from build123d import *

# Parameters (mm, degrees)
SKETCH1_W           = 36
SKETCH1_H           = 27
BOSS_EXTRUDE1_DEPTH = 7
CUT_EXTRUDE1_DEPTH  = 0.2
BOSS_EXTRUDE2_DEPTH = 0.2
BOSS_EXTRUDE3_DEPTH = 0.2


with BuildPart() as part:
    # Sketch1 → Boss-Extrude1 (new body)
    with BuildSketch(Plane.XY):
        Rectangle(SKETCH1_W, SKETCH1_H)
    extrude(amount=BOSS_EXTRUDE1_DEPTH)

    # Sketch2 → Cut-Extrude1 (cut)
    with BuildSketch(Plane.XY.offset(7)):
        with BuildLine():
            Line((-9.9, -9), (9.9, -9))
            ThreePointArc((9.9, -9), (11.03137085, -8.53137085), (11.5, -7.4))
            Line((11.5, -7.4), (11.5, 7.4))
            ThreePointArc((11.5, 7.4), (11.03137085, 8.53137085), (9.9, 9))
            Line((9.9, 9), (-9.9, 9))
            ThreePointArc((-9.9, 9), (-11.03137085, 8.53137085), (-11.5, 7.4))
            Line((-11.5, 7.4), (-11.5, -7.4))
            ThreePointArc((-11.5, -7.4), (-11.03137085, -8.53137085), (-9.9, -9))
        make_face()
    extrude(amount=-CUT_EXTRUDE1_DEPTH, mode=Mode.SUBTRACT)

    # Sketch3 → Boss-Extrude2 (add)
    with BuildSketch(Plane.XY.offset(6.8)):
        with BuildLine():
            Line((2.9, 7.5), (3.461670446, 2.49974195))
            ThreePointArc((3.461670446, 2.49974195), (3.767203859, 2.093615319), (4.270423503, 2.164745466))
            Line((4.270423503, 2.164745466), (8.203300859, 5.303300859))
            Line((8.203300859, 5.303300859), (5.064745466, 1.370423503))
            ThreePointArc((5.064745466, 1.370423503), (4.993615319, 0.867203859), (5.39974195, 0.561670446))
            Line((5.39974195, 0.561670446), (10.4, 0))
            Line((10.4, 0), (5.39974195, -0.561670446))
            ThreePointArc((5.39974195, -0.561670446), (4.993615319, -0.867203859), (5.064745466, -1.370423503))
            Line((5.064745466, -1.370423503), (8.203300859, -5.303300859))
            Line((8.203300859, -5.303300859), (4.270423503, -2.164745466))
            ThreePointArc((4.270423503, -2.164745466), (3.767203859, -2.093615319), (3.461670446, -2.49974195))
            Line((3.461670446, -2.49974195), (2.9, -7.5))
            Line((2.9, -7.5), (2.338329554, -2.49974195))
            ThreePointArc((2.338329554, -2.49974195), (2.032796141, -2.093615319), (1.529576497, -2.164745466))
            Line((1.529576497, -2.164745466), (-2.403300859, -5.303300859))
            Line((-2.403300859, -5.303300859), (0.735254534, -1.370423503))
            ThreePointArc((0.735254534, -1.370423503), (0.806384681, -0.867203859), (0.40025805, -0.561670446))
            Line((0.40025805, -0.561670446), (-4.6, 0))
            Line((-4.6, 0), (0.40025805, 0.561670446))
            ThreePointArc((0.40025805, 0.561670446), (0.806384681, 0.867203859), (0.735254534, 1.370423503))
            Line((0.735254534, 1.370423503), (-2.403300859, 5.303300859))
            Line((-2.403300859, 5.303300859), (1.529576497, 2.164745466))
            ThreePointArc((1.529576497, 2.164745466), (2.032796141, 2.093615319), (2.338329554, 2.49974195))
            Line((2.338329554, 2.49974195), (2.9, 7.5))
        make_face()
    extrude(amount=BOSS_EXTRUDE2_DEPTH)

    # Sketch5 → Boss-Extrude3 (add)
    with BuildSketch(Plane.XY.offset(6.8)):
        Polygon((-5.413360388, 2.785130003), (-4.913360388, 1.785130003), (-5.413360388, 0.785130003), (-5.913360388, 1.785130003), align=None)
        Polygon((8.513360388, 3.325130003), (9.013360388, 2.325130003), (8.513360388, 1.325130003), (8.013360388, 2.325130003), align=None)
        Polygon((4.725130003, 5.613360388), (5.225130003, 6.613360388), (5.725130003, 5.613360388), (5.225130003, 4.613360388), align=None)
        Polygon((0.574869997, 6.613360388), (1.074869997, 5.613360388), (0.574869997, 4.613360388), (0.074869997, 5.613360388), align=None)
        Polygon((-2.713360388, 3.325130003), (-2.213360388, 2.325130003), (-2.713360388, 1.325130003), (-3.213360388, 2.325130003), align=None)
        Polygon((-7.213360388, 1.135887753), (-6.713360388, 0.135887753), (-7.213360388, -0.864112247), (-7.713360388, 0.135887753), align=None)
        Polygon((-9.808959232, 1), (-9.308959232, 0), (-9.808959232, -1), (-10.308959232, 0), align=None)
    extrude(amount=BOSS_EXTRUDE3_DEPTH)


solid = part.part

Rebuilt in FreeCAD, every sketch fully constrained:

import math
import FreeCAD as App
import Part
import Sketcher
Q = App.Units.Quantity


def add_polygon(sketch, points):
    """Adds a closed chain of lines whose ends are joined by coincident constraints."""
    first, n = sketch.GeometryCount, len(points)
    for a, b in zip(points, points[1:] + points[:1]):
        sketch.addGeometry(Part.LineSegment(App.Vector(*a, 0), App.Vector(*b, 0)), False)
    for i in range(n):
        sketch.addConstraint(Sketcher.Constraint("Coincident", first + i, 2, first + (i + 1) % n, 1))

doc = App.newDocument("Part")
body = doc.addObject("PartDesign::Body", "Body")

# Sketch on XY plane
sketch1 = body.newObject("Sketcher::SketchObject", "Sketch")
sketch1.AttachmentSupport = (doc.getObject("XY_Plane"), [""])
sketch1.MapMode = "FlatFace"
add_polygon(sketch1, [(-18, 13.5), (-18, -13.5), (18, -13.5), (18, 13.5)])  # lines 0-3
sketch1.addConstraint([
    Sketcher.Constraint("Vertical", 0),
    Sketcher.Constraint("Horizontal", 1),
    Sketcher.Constraint("Vertical", 2),
    Sketcher.Constraint("Horizontal", 3),
    Sketcher.Constraint("Symmetric", 0, 2, 2, 2, -1, 1),
    Sketcher.Constraint("DistanceX", 1, 1, 1, 2, Q("36 mm")),
    Sketcher.Constraint("DistanceY", 0, 2, 0, 1, Q("27 mm")),
])
pad1 = body.newObject("PartDesign::Pad", "Pad")
pad1.Profile = sketch1
pad1.Length = 7

# Sketch on XY plane
sketch2 = body.newObject("Sketcher::SketchObject", "Sketch001")
sketch2.AttachmentSupport = (doc.getObject("XY_Plane"), [""])
sketch2.MapMode = "FlatFace"
sketch2.AttachmentOffset = App.Placement(App.Vector(0, 0, 7), App.Rotation())
sketch2.addGeometry([
    Part.LineSegment(App.Vector(-9.9, -9, 0), App.Vector(9.9, -9, 0)),  # 0
    Part.ArcOfCircle(Part.Circle(App.Vector(9.9, -7.4, 0), App.Vector(0, 0, 1), 1.6), math.radians(-90), math.radians(0)),  # 1
    Part.LineSegment(App.Vector(11.5, -7.4, 0), App.Vector(11.5, 7.4, 0)),  # 2
    Part.ArcOfCircle(Part.Circle(App.Vector(9.9, 7.4, 0), App.Vector(0, 0, 1), 1.6), math.radians(0), math.radians(90)),  # 3
    Part.LineSegment(App.Vector(9.9, 9, 0), App.Vector(-9.9, 9, 0)),  # 4
    Part.ArcOfCircle(Part.Circle(App.Vector(-9.9, 7.4, 0), App.Vector(0, 0, 1), 1.6), math.radians(90), math.radians(180)),  # 5
    Part.LineSegment(App.Vector(-11.5, 7.4, 0), App.Vector(-11.5, -7.4, 0)),  # 6
    Part.ArcOfCircle(Part.Circle(App.Vector(-9.9, -7.4, 0), App.Vector(0, 0, 1), 1.6), math.radians(180), math.radians(270)),  # 7
], False)
sketch2.addConstraint([
    Sketcher.Constraint("Tangent", 0, 2, 1, 1),
    Sketcher.Constraint("Tangent", 1, 2, 2, 1),
    Sketcher.Constraint("Tangent", 2, 2, 3, 1),
    Sketcher.Constraint("Tangent", 3, 2, 4, 1),
    Sketcher.Constraint("Tangent", 4, 2, 5, 1),
    Sketcher.Constraint("Tangent", 5, 2, 6, 1),
    Sketcher.Constraint("Tangent", 6, 2, 7, 1),
    Sketcher.Constraint("Tangent", 7, 2, 0, 1),
    Sketcher.Constraint("Horizontal", 0),
    Sketcher.Constraint("Vertical", 2),
    Sketcher.Constraint("Horizontal", 4),
    Sketcher.Constraint("Vertical", 6),
    Sketcher.Constraint("Equal", 1, 3),
    Sketcher.Constraint("Equal", 3, 5),
    Sketcher.Constraint("Equal", 5, 7),
    Sketcher.Constraint("Symmetric", 1, 3, 5, 3, -1, 1),
    Sketcher.Constraint("Radius", 1, Q("1.6 mm")),
    Sketcher.Constraint("DistanceX", 0, 1, 0, 2, Q("19.8 mm")),
    Sketcher.Constraint("DistanceY", 2, 1, 2, 2, Q("14.8 mm")),
])
pocket1 = body.newObject("PartDesign::Pocket", "Pocket")
pocket1.Profile = sketch2
pocket1.Length = 0.2

# Sketch on XY plane
sketch3 = body.newObject("Sketcher::SketchObject", "Sketch002")
sketch3.AttachmentSupport = (doc.getObject("XY_Plane"), [""])
sketch3.MapMode = "FlatFace"
sketch3.AttachmentOffset = App.Placement(App.Vector(0, 0, 6.8), App.Rotation())
sketch3.addGeometry([
    Part.LineSegment(App.Vector(3.46167, 2.499742, 0), App.Vector(2.9, 7.5, 0)),  # 0
    Part.LineSegment(App.Vector(2.9, 7.5, 0), App.Vector(2.33833, 2.499742, 0)),  # 1
    Part.ArcOfCircle(Part.Circle(App.Vector(1.841454, 2.555555, 0), App.Vector(0, 0, 1), 0.5), math.radians(-128.590929), math.radians(-6.409072)),  # 2
    Part.LineSegment(App.Vector(1.529576, 2.164745, 0), App.Vector(-2.403301, 5.303301, 0)),  # 3
    Part.LineSegment(App.Vector(-2.403301, 5.303301, 0), App.Vector(0.735255, 1.370424, 0)),  # 4
    Part.ArcOfCircle(Part.Circle(App.Vector(0.344445, 1.058546, 0), App.Vector(0, 0, 1), 0.5), math.radians(-83.590928), math.radians(38.590929)),  # 5
    Part.LineSegment(App.Vector(0.400258, 0.56167, 0), App.Vector(-4.6, 0, 0)),  # 6
    Part.LineSegment(App.Vector(-4.6, 0, 0), App.Vector(0.400258, -0.56167, 0)),  # 7
    Part.ArcOfCircle(Part.Circle(App.Vector(0.344445, -1.058546, 0), App.Vector(0, 0, 1), 0.5), math.radians(-38.590929), math.radians(83.590928)),  # 8
    Part.LineSegment(App.Vector(0.735255, -1.370424, 0), App.Vector(-2.403301, -5.303301, 0)),  # 9
    Part.LineSegment(App.Vector(-2.403301, -5.303301, 0), App.Vector(1.529576, -2.164745, 0)),  # 10
    Part.ArcOfCircle(Part.Circle(App.Vector(1.841454, -2.555555, 0), App.Vector(0, 0, 1), 0.5), math.radians(6.409072), math.radians(128.590929)),  # 11
    Part.LineSegment(App.Vector(2.33833, -2.499742, 0), App.Vector(2.9, -7.5, 0)),  # 12
    Part.LineSegment(App.Vector(2.9, -7.5, 0), App.Vector(3.46167, -2.499742, 0)),  # 13
    Part.ArcOfCircle(Part.Circle(App.Vector(3.958546, -2.555555, 0), App.Vector(0, 0, 1), 0.5), math.radians(51.409071), math.radians(173.590928)),  # 14
    Part.LineSegment(App.Vector(4.270424, -2.164745, 0), App.Vector(8.203301, -5.303301, 0)),  # 15
    Part.LineSegment(App.Vector(8.203301, -5.303301, 0), App.Vector(5.064745, -1.370424, 0)),  # 16
    Part.ArcOfCircle(Part.Circle(App.Vector(5.455555, -1.058546, 0), App.Vector(0, 0, 1), 0.5), math.radians(96.409072), math.radians(218.590929)),  # 17
    Part.LineSegment(App.Vector(5.399742, -0.56167, 0), App.Vector(10.4, 0, 0)),  # 18
    Part.LineSegment(App.Vector(10.4, 0, 0), App.Vector(5.399742, 0.56167, 0)),  # 19
    Part.ArcOfCircle(Part.Circle(App.Vector(5.455555, 1.058546, 0), App.Vector(0, 0, 1), 0.5), math.radians(141.409071), math.radians(263.590928)),  # 20
    Part.LineSegment(App.Vector(5.064745, 1.370424, 0), App.Vector(8.203301, 5.303301, 0)),  # 21
    Part.LineSegment(App.Vector(8.203301, 5.303301, 0), App.Vector(4.270424, 2.164745, 0)),  # 22
    Part.ArcOfCircle(Part.Circle(App.Vector(3.958546, 2.555555, 0), App.Vector(0, 0, 1), 0.5), math.radians(-173.590928), math.radians(-51.409071)),  # 23
], False)
sketch3.addConstraint([
    Sketcher.Constraint("Coincident", 0, 2, 1, 1),
    Sketcher.Constraint("Tangent", 1, 2, 2, 2),
    Sketcher.Constraint("Tangent", 2, 1, 3, 1),
    Sketcher.Constraint("Coincident", 3, 2, 4, 1),
    Sketcher.Constraint("Tangent", 4, 2, 5, 2),
    Sketcher.Constraint("Tangent", 5, 1, 6, 1),
    Sketcher.Constraint("Coincident", 6, 2, 7, 1),
    Sketcher.Constraint("Tangent", 7, 2, 8, 2),
    Sketcher.Constraint("Tangent", 8, 1, 9, 1),
    Sketcher.Constraint("Coincident", 9, 2, 10, 1),
    Sketcher.Constraint("Tangent", 10, 2, 11, 2),
    Sketcher.Constraint("Tangent", 11, 1, 12, 1),
    Sketcher.Constraint("Coincident", 12, 2, 13, 1),
    Sketcher.Constraint("Tangent", 13, 2, 14, 2),
    Sketcher.Constraint("Tangent", 14, 1, 15, 1),
    Sketcher.Constraint("Coincident", 15, 2, 16, 1),
    Sketcher.Constraint("Tangent", 16, 2, 17, 2),
    Sketcher.Constraint("Tangent", 17, 1, 18, 1),
    Sketcher.Constraint("Coincident", 18, 2, 19, 1),
    Sketcher.Constraint("Tangent", 19, 2, 20, 2),
    Sketcher.Constraint("Tangent", 20, 1, 21, 1),
    Sketcher.Constraint("Coincident", 21, 2, 22, 1),
    Sketcher.Constraint("Tangent", 22, 2, 23, 2),
    Sketcher.Constraint("Tangent", 23, 1, 0, 1),
    Sketcher.Constraint("Equal", 2, 5),
    Sketcher.Constraint("Equal", 5, 8),
    Sketcher.Constraint("Equal", 8, 11),
    Sketcher.Constraint("Equal", 11, 14),
    Sketcher.Constraint("Equal", 14, 17),
    Sketcher.Constraint("Equal", 17, 20),
    Sketcher.Constraint("Equal", 20, 23),
    Sketcher.Constraint("Symmetric", 5, 3, 8, 3, -1),
    Sketcher.Constraint("Symmetric", 2, 3, 11, 3, -1),
    Sketcher.Constraint("Symmetric", 17, 3, 20, 3, -1),
    Sketcher.Constraint("Symmetric", 14, 3, 23, 3, -1),
    Sketcher.Constraint("Symmetric", 3, 2, 9, 2, -1),
    Sketcher.Constraint("Symmetric", 0, 2, 12, 2, -1),
    Sketcher.Constraint("Symmetric", 15, 2, 21, 2, -1),
    Sketcher.Constraint("PointOnObject", 6, 2, -1),
    Sketcher.Constraint("PointOnObject", 18, 2, -1),
    Sketcher.Constraint("Perpendicular", 0, 6),
    Sketcher.Constraint("Perpendicular", 1, 7),
    Sketcher.Constraint("Perpendicular", 3, 9),
    Sketcher.Constraint("Perpendicular", 9, 15),
    Sketcher.Constraint("Perpendicular", 10, 16),
    Sketcher.Constraint("Perpendicular", 12, 18),
    Sketcher.Constraint("Horizontal", 11, 3, 14, 3),
    Sketcher.Constraint("Horizontal", 8, 3, 17, 3),
    Sketcher.Constraint("Horizontal", 9, 2, 15, 2),
    Sketcher.Constraint("Equal", 1, 3),
    Sketcher.Constraint("Equal", 3, 4),
    Sketcher.Constraint("Equal", 4, 6),
    Sketcher.Constraint("Radius", 2, Q("0.5 mm")),
    Sketcher.Constraint("DistanceX", -1, 1, 0, 2, Q("2.9 mm")),
    Sketcher.Constraint("DistanceY", -1, 1, 0, 2, Q("7.5 mm")),
    Sketcher.Constraint("DistanceX", 3, 2, -1, 1, Q("2.403301 mm")),
    Sketcher.Constraint("DistanceY", 8, 3, 2, 3, Q("3.614101 mm")),
])
pad2 = body.newObject("PartDesign::Pad", "Pad001")
pad2.Profile = sketch3
pad2.Length = 0.2

# Sketch on XY plane
sketch4 = body.newObject("Sketcher::SketchObject", "Sketch003")
sketch4.AttachmentSupport = (doc.getObject("XY_Plane"), [""])
sketch4.MapMode = "FlatFace"
sketch4.AttachmentOffset = App.Placement(App.Vector(0, 0, 6.8), App.Rotation())
add_polygon(sketch4, [(-4.91336, 1.78513), (-5.41336, 2.78513), (-5.91336, 1.78513), (-5.41336, 0.78513)])  # lines 0-3
add_polygon(sketch4, [(9.01336, 2.32513), (8.51336, 3.32513), (8.01336, 2.32513), (8.51336, 1.32513)])  # lines 4-7
add_polygon(sketch4, [(5.22513, 6.61336), (4.72513, 5.61336), (5.22513, 4.61336), (5.72513, 5.61336)])  # lines 8-11
add_polygon(sketch4, [(1.07487, 5.61336), (0.57487, 6.61336), (0.07487, 5.61336), (0.57487, 4.61336)])  # lines 12-15
add_polygon(sketch4, [(-2.21336, 2.32513), (-2.71336, 3.32513), (-3.21336, 2.32513), (-2.71336, 1.32513)])  # lines 16-19
add_polygon(sketch4, [(-6.71336, 0.135888), (-7.21336, 1.135888), (-7.71336, 0.135888), (-7.21336, -0.864112)])  # lines 20-23
add_polygon(sketch4, [(-9.308959, 0), (-9.808959, 1), (-10.308959, 0), (-9.808959, -1)])  # lines 24-27
sketch4.addConstraint([
    Sketcher.Constraint("Symmetric", 24, 2, 26, 2, -1),
    Sketcher.Constraint("PointOnObject", 25, 2, -1),
    Sketcher.Constraint("PointOnObject", 27, 2, -1),
    Sketcher.Constraint("Parallel", 0, 2),
    Sketcher.Constraint("Parallel", 1, 3),
    Sketcher.Constraint("Parallel", 2, 4),
    Sketcher.Constraint("Parallel", 3, 5),
    Sketcher.Constraint("Parallel", 4, 6),
    Sketcher.Constraint("Parallel", 5, 7),
    Sketcher.Constraint("Parallel", 7, 8),
    Sketcher.Constraint("Parallel", 6, 9),
    Sketcher.Constraint("Parallel", 8, 10),
    Sketcher.Constraint("Parallel", 9, 11),
    Sketcher.Constraint("Parallel", 11, 12),
    Sketcher.Constraint("Parallel", 10, 13),
    Sketcher.Constraint("Parallel", 12, 14),
    Sketcher.Constraint("Parallel", 13, 15),
    Sketcher.Constraint("Parallel", 14, 16),
    Sketcher.Constraint("Parallel", 15, 17),
    Sketcher.Constraint("Parallel", 16, 18),
    Sketcher.Constraint("Parallel", 17, 19),
    Sketcher.Constraint("Parallel", 18, 20),
    Sketcher.Constraint("Parallel", 19, 21),
    Sketcher.Constraint("Parallel", 20, 22),
    Sketcher.Constraint("Parallel", 21, 23),
    Sketcher.Constraint("Parallel", 22, 24),
    Sketcher.Constraint("Parallel", 23, 25),
    Sketcher.Constraint("Parallel", 24, 26),
    Sketcher.Constraint("Horizontal", 1, 2, 3, 2),
    Sketcher.Constraint("Horizontal", 5, 2, 7, 2),
    Sketcher.Constraint("Horizontal", 8, 2, 10, 2),
    Sketcher.Constraint("Horizontal", 11, 2, 12, 2),
    Sketcher.Constraint("Horizontal", 10, 2, 13, 2),
    Sketcher.Constraint("Horizontal", 9, 2, 14, 2),
    Sketcher.Constraint("Horizontal", 4, 2, 16, 2),
    Sketcher.Constraint("Horizontal", 7, 2, 17, 2),
    Sketcher.Constraint("Horizontal", 6, 2, 18, 2),
    Sketcher.Constraint("Horizontal", 21, 2, 23, 2),
    Sketcher.Constraint("Equal", 3, 4),
    Sketcher.Constraint("Equal", 7, 8),
    Sketcher.Constraint("Equal", 19, 20),
    Sketcher.Constraint("Equal", 23, 24),
    Sketcher.Constraint("DistanceY", -1, 1, 24, 2, Q("1 mm")),
    Sketcher.Constraint("DistanceX", 1, 2, 3, 2, Q("1 mm")),
    Sketcher.Constraint("DistanceX", 20, 2, 17, 2, Q("4 mm")),
    Sketcher.Constraint("DistanceX", 3, 2, 16, 2, Q("2.2 mm")),
    Sketcher.Constraint("DistanceY", 3, 2, 4, 2, Q("1.54 mm")),
    Sketcher.Constraint("DistanceX", 24, 2, 21, 2, Q("2.095599 mm")),
    Sketcher.Constraint("DistanceX", 0, 2, -1, 1, Q("5.41336 mm")),
    Sketcher.Constraint("DistanceY", -1, 1, 0, 2, Q("2.78513 mm")),
    Sketcher.Constraint("DistanceX", -1, 1, 4, 2, Q("8.51336 mm")),
    Sketcher.Constraint("DistanceX", -1, 1, 8, 2, Q("4.72513 mm")),
    Sketcher.Constraint("DistanceY", -1, 1, 8, 2, Q("5.61336 mm")),
    Sketcher.Constraint("DistanceX", -1, 1, 12, 2, Q("0.57487 mm")),
    Sketcher.Constraint("DistanceY", -1, 1, 20, 2, Q("1.135888 mm")),
])
pad3 = body.newObject("PartDesign::Pad", "Pad002")
pad3.Profile = sketch4
pad3.Length = 0.2

doc.recompute()
